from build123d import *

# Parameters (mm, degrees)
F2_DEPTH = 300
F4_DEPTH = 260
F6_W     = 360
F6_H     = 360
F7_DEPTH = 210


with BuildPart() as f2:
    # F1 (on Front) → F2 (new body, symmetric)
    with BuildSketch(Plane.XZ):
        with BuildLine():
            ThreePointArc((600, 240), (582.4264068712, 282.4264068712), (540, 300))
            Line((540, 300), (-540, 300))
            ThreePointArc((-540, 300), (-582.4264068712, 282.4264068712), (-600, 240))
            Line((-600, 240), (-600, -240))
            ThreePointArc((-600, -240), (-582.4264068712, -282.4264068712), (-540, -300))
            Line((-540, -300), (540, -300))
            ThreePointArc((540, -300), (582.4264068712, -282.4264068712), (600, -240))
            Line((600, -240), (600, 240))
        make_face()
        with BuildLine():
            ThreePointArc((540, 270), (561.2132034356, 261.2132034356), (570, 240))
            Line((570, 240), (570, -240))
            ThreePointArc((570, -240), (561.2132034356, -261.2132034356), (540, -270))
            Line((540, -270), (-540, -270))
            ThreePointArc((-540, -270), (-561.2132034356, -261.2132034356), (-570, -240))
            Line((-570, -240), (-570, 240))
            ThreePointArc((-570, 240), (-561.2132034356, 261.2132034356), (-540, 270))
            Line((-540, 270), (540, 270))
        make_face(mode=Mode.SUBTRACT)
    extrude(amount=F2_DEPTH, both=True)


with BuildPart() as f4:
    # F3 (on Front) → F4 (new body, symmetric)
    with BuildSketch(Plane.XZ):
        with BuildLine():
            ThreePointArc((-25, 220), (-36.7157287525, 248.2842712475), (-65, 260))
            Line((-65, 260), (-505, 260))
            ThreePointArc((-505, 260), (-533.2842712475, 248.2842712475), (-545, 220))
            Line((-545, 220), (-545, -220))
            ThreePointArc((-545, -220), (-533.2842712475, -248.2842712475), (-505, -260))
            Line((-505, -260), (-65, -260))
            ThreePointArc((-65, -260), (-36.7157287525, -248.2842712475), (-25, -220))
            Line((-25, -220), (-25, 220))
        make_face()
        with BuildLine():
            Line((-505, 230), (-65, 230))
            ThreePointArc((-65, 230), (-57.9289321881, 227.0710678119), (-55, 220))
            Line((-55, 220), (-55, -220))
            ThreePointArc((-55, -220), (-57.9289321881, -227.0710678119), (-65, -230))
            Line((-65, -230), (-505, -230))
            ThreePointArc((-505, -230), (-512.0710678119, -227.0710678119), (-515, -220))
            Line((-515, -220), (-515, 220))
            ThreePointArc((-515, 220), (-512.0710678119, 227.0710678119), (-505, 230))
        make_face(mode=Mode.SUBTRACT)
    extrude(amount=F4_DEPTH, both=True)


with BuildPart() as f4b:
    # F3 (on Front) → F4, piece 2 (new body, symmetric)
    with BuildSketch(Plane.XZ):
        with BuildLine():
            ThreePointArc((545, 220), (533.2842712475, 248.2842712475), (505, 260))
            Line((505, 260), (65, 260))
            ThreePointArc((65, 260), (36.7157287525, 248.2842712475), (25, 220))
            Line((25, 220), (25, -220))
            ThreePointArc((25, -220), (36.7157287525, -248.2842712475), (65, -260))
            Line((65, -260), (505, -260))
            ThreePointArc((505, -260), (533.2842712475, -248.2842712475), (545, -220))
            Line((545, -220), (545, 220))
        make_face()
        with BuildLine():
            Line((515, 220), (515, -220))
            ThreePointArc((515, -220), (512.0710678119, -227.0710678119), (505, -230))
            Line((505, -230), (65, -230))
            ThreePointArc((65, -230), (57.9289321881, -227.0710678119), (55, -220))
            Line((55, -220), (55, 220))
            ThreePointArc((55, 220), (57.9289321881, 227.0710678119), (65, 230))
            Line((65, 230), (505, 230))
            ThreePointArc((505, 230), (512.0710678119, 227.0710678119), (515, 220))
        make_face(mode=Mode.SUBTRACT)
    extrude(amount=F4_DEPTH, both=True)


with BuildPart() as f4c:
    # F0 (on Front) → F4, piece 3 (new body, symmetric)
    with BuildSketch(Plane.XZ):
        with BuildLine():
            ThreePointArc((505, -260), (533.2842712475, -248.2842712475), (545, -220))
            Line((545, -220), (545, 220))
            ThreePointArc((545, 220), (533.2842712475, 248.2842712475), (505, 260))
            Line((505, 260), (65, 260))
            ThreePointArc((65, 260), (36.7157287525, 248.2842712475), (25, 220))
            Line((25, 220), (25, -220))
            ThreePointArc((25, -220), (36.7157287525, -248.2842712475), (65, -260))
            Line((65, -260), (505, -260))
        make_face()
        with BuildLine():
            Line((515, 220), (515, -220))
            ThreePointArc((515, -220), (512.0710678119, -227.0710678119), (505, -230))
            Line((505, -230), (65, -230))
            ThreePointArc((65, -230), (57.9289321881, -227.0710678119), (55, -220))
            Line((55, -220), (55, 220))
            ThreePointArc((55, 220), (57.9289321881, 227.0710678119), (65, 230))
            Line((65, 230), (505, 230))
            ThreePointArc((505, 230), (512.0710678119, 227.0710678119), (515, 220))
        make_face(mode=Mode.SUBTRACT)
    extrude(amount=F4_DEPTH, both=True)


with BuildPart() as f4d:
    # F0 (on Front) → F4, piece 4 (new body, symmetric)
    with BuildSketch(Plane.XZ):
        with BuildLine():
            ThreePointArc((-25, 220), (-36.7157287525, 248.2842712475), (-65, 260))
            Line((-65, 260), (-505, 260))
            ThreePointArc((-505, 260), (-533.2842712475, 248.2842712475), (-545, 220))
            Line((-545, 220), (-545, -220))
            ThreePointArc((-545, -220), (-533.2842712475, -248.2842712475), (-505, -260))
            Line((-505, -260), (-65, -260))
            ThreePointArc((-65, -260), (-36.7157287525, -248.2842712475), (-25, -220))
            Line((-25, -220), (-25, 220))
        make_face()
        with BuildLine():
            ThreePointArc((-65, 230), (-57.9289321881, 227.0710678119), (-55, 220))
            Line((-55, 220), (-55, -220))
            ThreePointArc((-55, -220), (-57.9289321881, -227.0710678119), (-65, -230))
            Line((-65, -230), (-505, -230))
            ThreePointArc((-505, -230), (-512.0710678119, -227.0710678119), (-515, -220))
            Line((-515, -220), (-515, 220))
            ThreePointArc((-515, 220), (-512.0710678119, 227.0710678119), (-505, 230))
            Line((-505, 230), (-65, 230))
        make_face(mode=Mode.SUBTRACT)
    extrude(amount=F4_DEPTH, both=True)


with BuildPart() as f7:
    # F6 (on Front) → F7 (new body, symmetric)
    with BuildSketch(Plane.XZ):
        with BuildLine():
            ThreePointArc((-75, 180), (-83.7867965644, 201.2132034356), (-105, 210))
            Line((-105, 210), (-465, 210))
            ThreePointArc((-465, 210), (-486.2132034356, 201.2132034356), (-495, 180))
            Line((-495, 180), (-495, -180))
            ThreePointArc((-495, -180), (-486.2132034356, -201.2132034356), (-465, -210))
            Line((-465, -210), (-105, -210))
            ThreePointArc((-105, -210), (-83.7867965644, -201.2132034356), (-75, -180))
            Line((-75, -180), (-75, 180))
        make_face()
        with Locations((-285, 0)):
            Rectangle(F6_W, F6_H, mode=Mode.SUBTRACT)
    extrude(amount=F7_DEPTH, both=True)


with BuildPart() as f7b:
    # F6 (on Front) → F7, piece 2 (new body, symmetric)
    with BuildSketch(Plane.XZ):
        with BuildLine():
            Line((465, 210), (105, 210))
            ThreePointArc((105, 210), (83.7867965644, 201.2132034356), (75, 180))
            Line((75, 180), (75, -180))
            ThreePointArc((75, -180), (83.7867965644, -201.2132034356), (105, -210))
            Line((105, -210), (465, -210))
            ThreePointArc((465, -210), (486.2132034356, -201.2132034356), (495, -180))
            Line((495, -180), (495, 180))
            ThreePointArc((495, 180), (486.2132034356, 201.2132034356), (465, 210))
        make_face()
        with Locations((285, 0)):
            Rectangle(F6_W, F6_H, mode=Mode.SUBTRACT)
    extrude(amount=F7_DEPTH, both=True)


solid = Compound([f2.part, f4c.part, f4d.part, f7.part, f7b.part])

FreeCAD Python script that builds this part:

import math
import FreeCAD as App
import Part
import Sketcher


def add_polygon(sketch, points):
    """Adds a closed chain of lines whose ends are joined by coincident constraints."""
    first, n = sketch.GeometryCount, len(points)
    for a, b in zip(points, points[1:] + points[:1]):
        sketch.addGeometry(Part.LineSegment(App.Vector(*a, 0), App.Vector(*b, 0)), False)
    for i in range(n):
        sketch.addConstraint(Sketcher.Constraint("Coincident", first + i, 2, first + (i + 1) % n, 1))

doc = App.newDocument("Part")
body = doc.addObject("PartDesign::Body", "Body")

# Sketch on XZ plane
sketch1 = body.newObject("Sketcher::SketchObject", "Sketch")
sketch1.AttachmentSupport = (doc.getObject("XZ_Plane"), [""])
sketch1.MapMode = "FlatFace"
sketch1.addGeometry([
    Part.ArcOfCircle(Part.Circle(App.Vector(540, 240, 0), App.Vector(0, 0, 1), 60), math.radians(0), math.radians(90)),  # 0
    Part.LineSegment(App.Vector(540, 300, 0), App.Vector(-540, 300, 0)),  # 1
    Part.ArcOfCircle(Part.Circle(App.Vector(-540, 240, 0), App.Vector(0, 0, 1), 60), math.radians(90), math.radians(180)),  # 2
    Part.LineSegment(App.Vector(-600, 240, 0), App.Vector(-600, -240, 0)),  # 3
    Part.ArcOfCircle(Part.Circle(App.Vector(-540, -240, 0), App.Vector(0, 0, 1), 60), math.radians(180), math.radians(270)),  # 4
    Part.LineSegment(App.Vector(-540, -300, 0), App.Vector(540, -300, 0)),  # 5
    Part.ArcOfCircle(Part.Circle(App.Vector(540, -240, 0), App.Vector(0, 0, 1), 60), math.radians(-90), math.radians(0)),  # 6
    Part.LineSegment(App.Vector(600, -240, 0), App.Vector(600, 240, 0)),  # 7
    Part.LineSegment(App.Vector(-540, 270, 0), App.Vector(540, 270, 0)),  # 8
    Part.ArcOfCircle(Part.Circle(App.Vector(540, 240, 0), App.Vector(0, 0, 1), 30), math.radians(0), math.radians(90)),  # 9
    Part.LineSegment(App.Vector(570, 240, 0), App.Vector(570, -240, 0)),  # 10
    Part.ArcOfCircle(Part.Circle(App.Vector(540, -240, 0), App.Vector(0, 0, 1), 30), math.radians(-90), math.radians(0)),  # 11
    Part.LineSegment(App.Vector(540, -270, 0), App.Vector(-540, -270, 0)),  # 12
    Part.ArcOfCircle(Part.Circle(App.Vector(-540, -240, 0), App.Vector(0, 0, 1), 30), math.radians(180), math.radians(270)),  # 13
    Part.LineSegment(App.Vector(-570, -240, 0), App.Vector(-570, 240, 0)),  # 14
    Part.ArcOfCircle(Part.Circle(App.Vector(-540, 240, 0), App.Vector(0, 0, 1), 30), math.radians(90), math.radians(180)),  # 15
], False)
sketch1.addConstraint([
    Sketcher.Constraint("Tangent", 0, 2, 1, 1),
    Sketcher.Constraint("Tangent", 1, 2, 2, 1),
    Sketcher.Constraint("Tangent", 2, 2, 3, 1),
    Sketcher.Constraint("Tangent", 3, 2, 4, 1),
    Sketcher.Constraint("Tangent", 4, 2, 5, 1),
    Sketcher.Constraint("Tangent", 5, 2, 6, 1),
    Sketcher.Constraint("Tangent", 6, 2, 7, 1),
    Sketcher.Constraint("Tangent", 7, 2, 0, 1),
    Sketcher.Constraint("Tangent", 8, 2, 9, 2),
    Sketcher.Constraint("Tangent", 9, 1, 10, 1),
    Sketcher.Constraint("Tangent", 10, 2, 11, 2),
    Sketcher.Constraint("Tangent", 11, 1, 12, 1),
    Sketcher.Constraint("Tangent", 12, 2, 13, 2),
    Sketcher.Constraint("Tangent", 13, 1, 14, 1),
    Sketcher.Constraint("Tangent", 14, 2, 15, 2),
    Sketcher.Constraint("Tangent", 15, 1, 8, 1),
    Sketcher.Constraint("Horizontal", 1),
    Sketcher.Constraint("Vertical", 3),
    Sketcher.Constraint("Horizontal", 5),
    Sketcher.Constraint("Vertical", 7),
    Sketcher.Constraint("Horizontal", 8),
    Sketcher.Constraint("Vertical", 10),
    Sketcher.Constraint("Horizontal", 12),
    Sketcher.Constraint("Vertical", 14),
    Sketcher.Constraint("Coincident", 9, 3, 0, 3),
    Sketcher.Constraint("Coincident", 11, 3, 6, 3),
    Sketcher.Constraint("Coincident", 13, 3, 4, 3),
    Sketcher.Constraint("Equal", 0, 2),
    Sketcher.Constraint("Equal", 2, 4),
    Sketcher.Constraint("Equal", 4, 6),
    Sketcher.Constraint("Equal", 13, 15),
    Sketcher.Constraint("Symmetric", 0, 3, 4, 3, -1, 1),
    Sketcher.Constraint("Radius", 0, 60.0),
    Sketcher.Constraint("Radius", 9, 30.0),
    Sketcher.Constraint("DistanceX", 1, 2, 1, 1, 1080.0),
    Sketcher.Constraint("DistanceY", 3, 2, 3, 1, 480.0),
])
pad1 = body.newObject("PartDesign::Pad", "Pad")
pad1.Profile = sketch1
pad1.Length = 600
pad1.Midplane = True
body2 = doc.addObject("PartDesign::Body", "Body001")

# Sketch on XZ plane
sketch2 = body2.newObject("Sketcher::SketchObject", "Sketch001")
sketch2.AttachmentSupport = (doc.getObject("XZ_Plane001"), [""])
sketch2.MapMode = "FlatFace"
sketch2.addGeometry([
    Part.ArcOfCircle(Part.Circle(App.Vector(-65, 220, 0), App.Vector(0, 0, 1), 40), math.radians(0), math.radians(90)),  # 0
    Part.LineSegment(App.Vector(-65, 260, 0), App.Vector(-505, 260, 0)),  # 1
    Part.ArcOfCircle(Part.Circle(App.Vector(-505, 220, 0), App.Vector(0, 0, 1), 40), math.radians(90), math.radians(180)),  # 2
    Part.LineSegment(App.Vector(-545, 220, 0), App.Vector(-545, -220, 0)),  # 3
    Part.ArcOfCircle(Part.Circle(App.Vector(-505, -220, 0), App.Vector(0, 0, 1), 40), math.radians(180), math.radians(270)),  # 4
    Part.LineSegment(App.Vector(-505, -260, 0), App.Vector(-65, -260, 0)),  # 5
    Part.ArcOfCircle(Part.Circle(App.Vector(-65, -220, 0), App.Vector(0, 0, 1), 40), math.radians(-90), math.radians(0)),  # 6
    Part.LineSegment(App.Vector(-25, -220, 0), App.Vector(-25, 220, 0)),  # 7
    Part.ArcOfCircle(Part.Circle(App.Vector(-505, 220, 0), App.Vector(0, 0, 1), 10), math.radians(90), math.radians(180)),  # 8
    Part.LineSegment(App.Vector(-505, 230, 0), App.Vector(-65, 230, 0)),  # 9
    Part.ArcOfCircle(Part.Circle(App.Vector(-65, 220, 0), App.Vector(0, 0, 1), 10), math.radians(0), math.radians(90)),  # 10
    Part.LineSegment(App.Vector(-55, 220, 0), App.Vector(-55, -220, 0)),  # 11
    Part.ArcOfCircle(Part.Circle(App.Vector(-65, -220, 0), App.Vector(0, 0, 1), 10), math.radians(-90), math.radians(0)),  # 12
    Part.LineSegment(App.Vector(-65, -230, 0), App.Vector(-505, -230, 0)),  # 13
    Part.ArcOfCircle(Part.Circle(App.Vector(-505, -220, 0), App.Vector(0, 0, 1), 10), math.radians(180), math.radians(270)),  # 14
    Part.LineSegment(App.Vector(-515, -220, 0), App.Vector(-515, 220, 0)),  # 15
], False)
sketch2.addConstraint([
    Sketcher.Constraint("Tangent", 0, 2, 1, 1),
    Sketcher.Constraint("Tangent", 1, 2, 2, 1),
    Sketcher.Constraint("Tangent", 2, 2, 3, 1),
    Sketcher.Constraint("Tangent", 3, 2, 4, 1),
    Sketcher.Constraint("Tangent", 4, 2, 5, 1),
    Sketcher.Constraint("Tangent", 5, 2, 6, 1),
    Sketcher.Constraint("Tangent", 6, 2, 7, 1),
    Sketcher.Constraint("Tangent", 7, 2, 0, 1),
    Sketcher.Constraint("Tangent", 8, 1, 9, 1),
    Sketcher.Constraint("Tangent", 9, 2, 10, 2),
    Sketcher.Constraint("Tangent", 10, 1, 11, 1),
    Sketcher.Constraint("Tangent", 11, 2, 12, 2),
    Sketcher.Constraint("Tangent", 12, 1, 13, 1),
    Sketcher.Constraint("Tangent", 13, 2, 14, 2),
    Sketcher.Constraint("Tangent", 14, 1, 15, 1),
    Sketcher.Constraint("Tangent", 15, 2, 8, 2),
    Sketcher.Constraint("Horizontal", 1),
    Sketcher.Constraint("Vertical", 3),
    Sketcher.Constraint("Horizontal", 5),
    Sketcher.Constraint("Vertical", 7),
    Sketcher.Constraint("Horizontal", 9),
    Sketcher.Constraint("Vertical", 11),
    Sketcher.Constraint("Horizontal", 13),
    Sketcher.Constraint("Vertical", 15),
    Sketcher.Constraint("Coincident", 8, 3, 2, 3),
    Sketcher.Constraint("Coincident", 10, 3, 0, 3),
    Sketcher.Constraint("Coincident", 12, 3, 6, 3),
    Sketcher.Constraint("Equal", 0, 2),
    Sketcher.Constraint("Equal", 2, 4),
    Sketcher.Constraint("Equal", 4, 6),
    Sketcher.Constraint("Equal", 12, 14),
    Sketcher.Constraint("Equal", 13, 3),
    Sketcher.Constraint("Radius", 0, 40.0),
    Sketcher.Constraint("Radius", 8, 10.0),
    Sketcher.Constraint("DistanceX", 1, 2, 1, 1, 440.0),
    Sketcher.Constraint("DistanceX", 0, 3, -1, 1, 65.0),
    Sketcher.Constraint("DistanceY", -1, 1, 0, 3, 220.0),
])
pad2 = body2.newObject("PartDesign::Pad", "Pad001")
pad2.Profile = sketch2
pad2.Length = 520
pad2.Midplane = True
body3 = doc.addObject("PartDesign::Body", "Body002")

# Sketch on XZ plane
sketch3 = body3.newObject("Sketcher::SketchObject", "Sketch002")
sketch3.AttachmentSupport = (doc.getObject("XZ_Plane002"), [""])
sketch3.MapMode = "FlatFace"
sketch3.addGeometry([
    Part.ArcOfCircle(Part.Circle(App.Vector(505, 220, 0), App.Vector(0, 0, 1), 40), math.radians(0), math.radians(90)),  # 0
    Part.LineSegment(App.Vector(505, 260, 0), App.Vector(65, 260, 0)),  # 1
    Part.ArcOfCircle(Part.Circle(App.Vector(65, 220, 0), App.Vector(0, 0, 1), 40), math.radians(90), math.radians(180)),  # 2
    Part.LineSegment(App.Vector(25, 220, 0), App.Vector(25, -220, 0)),  # 3
    Part.ArcOfCircle(Part.Circle(App.Vector(65, -220, 0), App.Vector(0, 0, 1), 40), math.radians(180), math.radians(270)),  # 4
    Part.LineSegment(App.Vector(65, -260, 0), App.Vector(505, -260, 0)),  # 5
    Part.ArcOfCircle(Part.Circle(App.Vector(505, -220, 0), App.Vector(0, 0, 1), 40), math.radians(-90), math.radians(0)),  # 6
    Part.LineSegment(App.Vector(545, -220, 0), App.Vector(545, 220, 0)),  # 7
    Part.ArcOfCircle(Part.Circle(App.Vector(505, 220, 0), App.Vector(0, 0, 1), 10), math.radians(0), math.radians(90)),  # 8
    Part.LineSegment(App.Vector(515, 220, 0), App.Vector(515, -220, 0)),  # 9
    Part.ArcOfCircle(Part.Circle(App.Vector(505, -220, 0), App.Vector(0, 0, 1), 10), math.radians(-90), math.radians(0)),  # 10
    Part.LineSegment(App.Vector(505, -230, 0), App.Vector(65, -230, 0)),  # 11
    Part.ArcOfCircle(Part.Circle(App.Vector(65, -220, 0), App.Vector(0, 0, 1), 10), math.radians(180), math.radians(270)),  # 12
    Part.LineSegment(App.Vector(55, -220, 0), App.Vector(55, 220, 0)),  # 13
    Part.ArcOfCircle(Part.Circle(App.Vector(65, 220, 0), App.Vector(0, 0, 1), 10), math.radians(90), math.radians(180)),  # 14
    Part.LineSegment(App.Vector(65, 230, 0), App.Vector(505, 230, 0)),  # 15
], False)
sketch3.addConstraint([
    Sketcher.Constraint("Tangent", 0, 2, 1, 1),
    Sketcher.Constraint("Tangent", 1, 2, 2, 1),
    Sketcher.Constraint("Tangent", 2, 2, 3, 1),
    Sketcher.Constraint("Tangent", 3, 2, 4, 1),
    Sketcher.Constraint("Tangent", 4, 2, 5, 1),
    Sketcher.Constraint("Tangent", 5, 2, 6, 1),
    Sketcher.Constraint("Tangent", 6, 2, 7, 1),
    Sketcher.Constraint("Tangent", 7, 2, 0, 1),
    Sketcher.Constraint("Tangent", 8, 1, 9, 1),
    Sketcher.Constraint("Tangent", 9, 2, 10, 2),
    Sketcher.Constraint("Tangent", 10, 1, 11, 1),
    Sketcher.Constraint("Tangent", 11, 2, 12, 2),
    Sketcher.Constraint("Tangent", 12, 1, 13, 1),
    Sketcher.Constraint("Tangent", 13, 2, 14, 2),
    Sketcher.Constraint("Tangent", 14, 1, 15, 1),
    Sketcher.Constraint("Tangent", 15, 2, 8, 2),
    Sketcher.Constraint("Horizontal", 1),
    Sketcher.Constraint("Vertical", 3),
    Sketcher.Constraint("Horizontal", 5),
    Sketcher.Constraint("Vertical", 7),
    Sketcher.Constraint("Vertical", 9),
    Sketcher.Constraint("Horizontal", 11),
    Sketcher.Constraint("Vertical", 13),
    Sketcher.Constraint("Horizontal", 15),
    Sketcher.Constraint("Coincident", 8, 3, 0, 3),
    Sketcher.Constraint("Coincident", 10, 3, 6, 3),
    Sketcher.Constraint("Coincident", 12, 3, 4, 3),
    Sketcher.Constraint("Equal", 0, 2),
    Sketcher.Constraint("Equal", 2, 4),
    Sketcher.Constraint("Equal", 4, 6),
    Sketcher.Constraint("Equal", 12, 14),
    Sketcher.Constraint("Equal", 15, 3),
    Sketcher.Constraint("Radius", 0, 40.0),
    Sketcher.Constraint("Radius", 8, 10.0),
    Sketcher.Constraint("DistanceX", 1, 2, 1, 1, 440.0),
    Sketcher.Constraint("DistanceX", -1, 1, 0, 3, 505.0),
    Sketcher.Constraint("DistanceY", -1, 1, 0, 3, 220.0),
])
pad3 = body3.newObject("PartDesign::Pad", "Pad002")
pad3.Profile = sketch3
pad3.Length = 520
pad3.Midplane = True
body4 = doc.addObject("PartDesign::Body", "Body003")

# Sketch on XZ plane
sketch4 = body4.newObject("Sketcher::SketchObject", "Sketch003")
sketch4.AttachmentSupport = (doc.getObject("XZ_Plane003"), [""])
sketch4.MapMode = "FlatFace"
sketch4.addGeometry([
    Part.ArcOfCircle(Part.Circle(App.Vector(505, -220, 0), App.Vector(0, 0, 1), 40), math.radians(-90), math.radians(0)),  # 0
    Part.LineSegment(App.Vector(545, -220, 0), App.Vector(545, 220, 0)),  # 1
    Part.ArcOfCircle(Part.Circle(App.Vector(505, 220, 0), App.Vector(0, 0, 1), 40), math.radians(0), math.radians(90)),  # 2
    Part.LineSegment(App.Vector(505, 260, 0), App.Vector(65, 260, 0)),  # 3
    Part.ArcOfCircle(Part.Circle(App.Vector(65, 220, 0), App.Vector(0, 0, 1), 40), math.radians(90), math.radians(180)),  # 4
    Part.LineSegment(App.Vector(25, 220, 0), App.Vector(25, -220, 0)),  # 5
    Part.ArcOfCircle(Part.Circle(App.Vector(65, -220, 0), App.Vector(0, 0, 1), 40), math.radians(180), math.radians(270)),  # 6
    Part.LineSegment(App.Vector(65, -260, 0), App.Vector(505, -260, 0)),  # 7
    Part.ArcOfCircle(Part.Circle(App.Vector(505, 220, 0), App.Vector(0, 0, 1), 10), math.radians(0), math.radians(90)),  # 8
    Part.LineSegment(App.Vector(515, 220, 0), App.Vector(515, -220, 0)),  # 9
    Part.ArcOfCircle(Part.Circle(App.Vector(505, -220, 0), App.Vector(0, 0, 1), 10), math.radians(-90), math.radians(0)),  # 10
    Part.LineSegment(App.Vector(505, -230, 0), App.Vector(65, -230, 0)),  # 11
    Part.ArcOfCircle(Part.Circle(App.Vector(65, -220, 0), App.Vector(0, 0, 1), 10), math.radians(180), math.radians(270)),  # 12
    Part.LineSegment(App.Vector(55, -220, 0), App.Vector(55, 220, 0)),  # 13
    Part.ArcOfCircle(Part.Circle(App.Vector(65, 220, 0), App.Vector(0, 0, 1), 10), math.radians(90), math.radians(180)),  # 14
    Part.LineSegment(App.Vector(65, 230, 0), App.Vector(505, 230, 0)),  # 15
], False)
sketch4.addConstraint([
    Sketcher.Constraint("Tangent", 0, 2, 1, 1),
    Sketcher.Constraint("Tangent", 1, 2, 2, 1),
    Sketcher.Constraint("Tangent", 2, 2, 3, 1),
    Sketcher.Constraint("Tangent", 3, 2, 4, 1),
    Sketcher.Constraint("Tangent", 4, 2, 5, 1),
    Sketcher.Constraint("Tangent", 5, 2, 6, 1),
    Sketcher.Constraint("Tangent", 6, 2, 7, 1),
    Sketcher.Constraint("Tangent", 7, 2, 0, 1),
    Sketcher.Constraint("Tangent", 8, 1, 9, 1),
    Sketcher.Constraint("Tangent", 9, 2, 10, 2),
    Sketcher.Constraint("Tangent", 10, 1, 11, 1),
    Sketcher.Constraint("Tangent", 11, 2, 12, 2),
    Sketcher.Constraint("Tangent", 12, 1, 13, 1),
    Sketcher.Constraint("Tangent", 13, 2, 14, 2),
    Sketcher.Constraint("Tangent", 14, 1, 15, 1),
    Sketcher.Constraint("Tangent", 15, 2, 8, 2),
    Sketcher.Constraint("Vertical", 1),
    Sketcher.Constraint("Horizontal", 3),
    Sketcher.Constraint("Vertical", 5),
    Sketcher.Constraint("Horizontal", 7),
    Sketcher.Constraint("Vertical", 9),
    Sketcher.Constraint("Horizontal", 11),
    Sketcher.Constraint("Vertical", 13),
    Sketcher.Constraint("Horizontal", 15),
    Sketcher.Constraint("Coincident", 8, 3, 2, 3),
    Sketcher.Constraint("Coincident", 10, 3, 0, 3),
    Sketcher.Constraint("Coincident", 12, 3, 6, 3),
    Sketcher.Constraint("Equal", 0, 2),
    Sketcher.Constraint("Equal", 2, 4),
    Sketcher.Constraint("Equal", 4, 6),
    Sketcher.Constraint("Equal", 12, 14),
    Sketcher.Constraint("Equal", 15, 1),
    Sketcher.Constraint("Radius", 0, 40.0),
    Sketcher.Constraint("Radius", 8, 10.0),
    Sketcher.Constraint("DistanceX", 3, 2, 3, 1, 440.0),
    Sketcher.Constraint("DistanceX", -1, 1, 0, 3, 505.0),
    Sketcher.Constraint("DistanceY", 0, 3, -1, 1, 220.0),
])
pad4 = body4.newObject("PartDesign::Pad", "Pad003")
pad4.Profile = sketch4
pad4.Length = 520
pad4.Midplane = True
body5 = doc.addObject("PartDesign::Body", "Body004")

# Sketch on XZ plane
sketch5 = body5.newObject("Sketcher::SketchObject", "Sketch004")
sketch5.AttachmentSupport = (doc.getObject("XZ_Plane004"), [""])
sketch5.MapMode = "FlatFace"
sketch5.addGeometry([
    Part.ArcOfCircle(Part.Circle(App.Vector(-65, 220, 0), App.Vector(0, 0, 1), 40), math.radians(0), math.radians(90)),  # 0
    Part.LineSegment(App.Vector(-65, 260, 0), App.Vector(-505, 260, 0)),  # 1
    Part.ArcOfCircle(Part.Circle(App.Vector(-505, 220, 0), App.Vector(0, 0, 1), 40), math.radians(90), math.radians(180)),  # 2
    Part.LineSegment(App.Vector(-545, 220, 0), App.Vector(-545, -220, 0)),  # 3
    Part.ArcOfCircle(Part.Circle(App.Vector(-505, -220, 0), App.Vector(0, 0, 1), 40), math.radians(180), math.radians(270)),  # 4
    Part.LineSegment(App.Vector(-505, -260, 0), App.Vector(-65, -260, 0)),  # 5
    Part.ArcOfCircle(Part.Circle(App.Vector(-65, -220, 0), App.Vector(0, 0, 1), 40), math.radians(-90), math.radians(0)),  # 6
    Part.LineSegment(App.Vector(-25, -220, 0), App.Vector(-25, 220, 0)),  # 7
    Part.LineSegment(App.Vector(-505, 230, 0), App.Vector(-65, 230, 0)),  # 8
    Part.ArcOfCircle(Part.Circle(App.Vector(-65, 220, 0), App.Vector(0, 0, 1), 10), math.radians(0), math.radians(90)),  # 9
    Part.LineSegment(App.Vector(-55, 220, 0), App.Vector(-55, -220, 0)),  # 10
    Part.ArcOfCircle(Part.Circle(App.Vector(-65, -220, 0), App.Vector(0, 0, 1), 10), math.radians(-90), math.radians(0)),  # 11
    Part.LineSegment(App.Vector(-65, -230, 0), App.Vector(-505, -230, 0)),  # 12
    Part.ArcOfCircle(Part.Circle(App.Vector(-505, -220, 0), App.Vector(0, 0, 1), 10), math.radians(180), math.radians(270)),  # 13
    Part.LineSegment(App.Vector(-515, -220, 0), App.Vector(-515, 220, 0)),  # 14
    Part.ArcOfCircle(Part.Circle(App.Vector(-505, 220, 0), App.Vector(0, 0, 1), 10), math.radians(90), math.radians(180)),  # 15
], False)
sketch5.addConstraint([
    Sketcher.Constraint("Tangent", 0, 2, 1, 1),
    Sketcher.Constraint("Tangent", 1, 2, 2, 1),
    Sketcher.Constraint("Tangent", 2, 2, 3, 1),
    Sketcher.Constraint("Tangent", 3, 2, 4, 1),
    Sketcher.Constraint("Tangent", 4, 2, 5, 1),
    Sketcher.Constraint("Tangent", 5, 2, 6, 1),
    Sketcher.Constraint("Tangent", 6, 2, 7, 1),
    Sketcher.Constraint("Tangent", 7, 2, 0, 1),
    Sketcher.Constraint("Tangent", 8, 2, 9, 2),
    Sketcher.Constraint("Tangent", 9, 1, 10, 1),
    Sketcher.Constraint("Tangent", 10, 2, 11, 2),
    Sketcher.Constraint("Tangent", 11, 1, 12, 1),
    Sketcher.Constraint("Tangent", 12, 2, 13, 2),
    Sketcher.Constraint("Tangent", 13, 1, 14, 1),
    Sketcher.Constraint("Tangent", 14, 2, 15, 2),
    Sketcher.Constraint("Tangent", 15, 1, 8, 1),
    Sketcher.Constraint("Horizontal", 1),
    Sketcher.Constraint("Vertical", 3),
    Sketcher.Constraint("Horizontal", 5),
    Sketcher.Constraint("Vertical", 7),
    Sketcher.Constraint("Horizontal", 8),
    Sketcher.Constraint("Vertical", 10),
    Sketcher.Constraint("Horizontal", 12),
    Sketcher.Constraint("Vertical", 14),
    Sketcher.Constraint("Coincident", 9, 3, 0, 3),
    Sketcher.Constraint("Coincident", 11, 3, 6, 3),
    Sketcher.Constraint("Coincident", 13, 3, 4, 3),
    Sketcher.Constraint("Equal", 0, 2),
    Sketcher.Constraint("Equal", 2, 4),
    Sketcher.Constraint("Equal", 4, 6),
    Sketcher.Constraint("Equal", 13, 15),
    Sketcher.Constraint("Equal", 12, 3),
    Sketcher.Constraint("Radius", 0, 40.0),
    Sketcher.Constraint("Radius", 9, 10.0),
    Sketcher.Constraint("DistanceX", 1, 2, 1, 1, 440.0),
    Sketcher.Constraint("DistanceX", 0, 3, -1, 1, 65.0),
    Sketcher.Constraint("DistanceY", -1, 1, 0, 3, 220.0),
])
pad5 = body5.newObject("PartDesign::Pad", "Pad004")
pad5.Profile = sketch5
pad5.Length = 520
pad5.Midplane = True
body6 = doc.addObject("PartDesign::Body", "Body005")

# Sketch on XZ plane
sketch6 = body6.newObject("Sketcher::SketchObject", "Sketch005")
sketch6.AttachmentSupport = (doc.getObject("XZ_Plane005"), [""])
sketch6.MapMode = "FlatFace"
sketch6.addGeometry(Part.ArcOfCircle(Part.Circle(App.Vector(-105, 180, 0), App.Vector(0, 0, 1), 30), math.radians(0), math.radians(90)), False)  # 0
sketch6.addGeometry(Part.LineSegment(App.Vector(-105, 210, 0), App.Vector(-465, 210, 0)), False)  # 1
sketch6.addGeometry(Part.ArcOfCircle(Part.Circle(App.Vector(-465, 180, 0), App.Vector(0, 0, 1), 30), math.radians(90), math.radians(180)), False)  # 2
sketch6.addGeometry(Part.LineSegment(App.Vector(-495, 180, 0), App.Vector(-495, -180, 0)), False)  # 3
sketch6.addGeometry(Part.ArcOfCircle(Part.Circle(App.Vector(-465, -180, 0), App.Vector(0, 0, 1), 30), math.radians(180), math.radians(270)), False)  # 4
sketch6.addGeometry(Part.LineSegment(App.Vector(-465, -210, 0), App.Vector(-105, -210, 0)), False)  # 5
sketch6.addGeometry(Part.ArcOfCircle(Part.Circle(App.Vector(-105, -180, 0), App.Vector(0, 0, 1), 30), math.radians(-90), math.radians(0)), False)  # 6
sketch6.addGeometry(Part.LineSegment(App.Vector(-75, -180, 0), App.Vector(-75, 180, 0)), False)  # 7
add_polygon(sketch6, [(-105, -180), (-465, -180), (-465, 180), (-105, 180)])  # lines 8-11
sketch6.addConstraint([
    Sketcher.Constraint("Tangent", 0, 2, 1, 1),
    Sketcher.Constraint("Tangent", 1, 2, 2, 1),
    Sketcher.Constraint("Tangent", 2, 2, 3, 1),
    Sketcher.Constraint("Tangent", 3, 2, 4, 1),
    Sketcher.Constraint("Tangent", 4, 2, 5, 1),
    Sketcher.Constraint("Tangent", 5, 2, 6, 1),
    Sketcher.Constraint("Tangent", 6, 2, 7, 1),
    Sketcher.Constraint("Tangent", 7, 2, 0, 1),
    Sketcher.Constraint("Horizontal", 1),
    Sketcher.Constraint("Vertical", 3),
    Sketcher.Constraint("Horizontal", 5),
    Sketcher.Constraint("Vertical", 7),
    Sketcher.Constraint("Horizontal", 8),
    Sketcher.Constraint("Vertical", 9),
    Sketcher.Constraint("Horizontal", 10),
    Sketcher.Constraint("Vertical", 11),
    Sketcher.Constraint("Coincident", 8, 2, 4, 3),
    Sketcher.Constraint("Coincident", 9, 2, 2, 3),
    Sketcher.Constraint("Coincident", 10, 2, 0, 3),
    Sketcher.Constraint("Equal", 4, 6),
    Sketcher.Constraint("Equal", 10, 3),
    Sketcher.Constraint("Radius", 0, 30.0),
    Sketcher.Constraint("DistanceX", 1, 2, 1, 1, 360.0),
    Sketcher.Constraint("DistanceX", 0, 3, -1, 1, 105.0),
    Sketcher.Constraint("DistanceY", -1, 1, 0, 3, 180.0),
])
pad6 = body6.newObject("PartDesign::Pad", "Pad005")
pad6.Profile = sketch6
pad6.Length = 420
pad6.Midplane = True
body7 = doc.addObject("PartDesign::Body", "Body006")

# Sketch on XZ plane
sketch7 = body7.newObject("Sketcher::SketchObject", "Sketch006")
sketch7.AttachmentSupport = (doc.getObject("XZ_Plane006"), [""])
sketch7.MapMode = "FlatFace"
sketch7.addGeometry(Part.LineSegment(App.Vector(465, 210, 0), App.Vector(105, 210, 0)), False)  # 0
sketch7.addGeometry(Part.ArcOfCircle(Part.Circle(App.Vector(105, 180, 0), App.Vector(0, 0, 1), 30), math.radians(90), math.radians(180)), False)  # 1
sketch7.addGeometry(Part.LineSegment(App.Vector(75, 180, 0), App.Vector(75, -180, 0)), False)  # 2
sketch7.addGeometry(Part.ArcOfCircle(Part.Circle(App.Vector(105, -180, 0), App.Vector(0, 0, 1), 30), math.radians(180), math.radians(270)), False)  # 3
sketch7.addGeometry(Part.LineSegment(App.Vector(105, -210, 0), App.Vector(465, -210, 0)), False)  # 4
sketch7.addGeometry(Part.ArcOfCircle(Part.Circle(App.Vector(465, -180, 0), App.Vector(0, 0, 1), 30), math.radians(-90), math.radians(0)), False)  # 5
sketch7.addGeometry(Part.LineSegment(App.Vector(495, -180, 0), App.Vector(495, 180, 0)), False)  # 6
sketch7.addGeometry(Part.ArcOfCircle(Part.Circle(App.Vector(465, 180, 0), App.Vector(0, 0, 1), 30), math.radians(0), math.radians(90)), False)  # 7
add_polygon(sketch7, [(465, -180), (105, -180), (105, 180), (465, 180)])  # lines 8-11
sketch7.addConstraint([
    Sketcher.Constraint("Tangent", 0, 2, 1, 1),
    Sketcher.Constraint("Tangent", 1, 2, 2, 1),
    Sketcher.Constraint("Tangent", 2, 2, 3, 1),
    Sketcher.Constraint("Tangent", 3, 2, 4, 1),
    Sketcher.Constraint("Tangent", 4, 2, 5, 1),
    Sketcher.Constraint("Tangent", 5, 2, 6, 1),
    Sketcher.Constraint("Tangent", 6, 2, 7, 1),
    Sketcher.Constraint("Tangent", 7, 2, 0, 1),
    Sketcher.Constraint("Horizontal", 0),
    Sketcher.Constraint("Vertical", 2),
    Sketcher.Constraint("Horizontal", 4),
    Sketcher.Constraint("Vertical", 6),
    Sketcher.Constraint("Horizontal", 8),
    Sketcher.Constraint("Vertical", 9),
    Sketcher.Constraint("Horizontal", 10),
    Sketcher.Constraint("Vertical", 11),
    Sketcher.Constraint("Coincident", 8, 2, 3, 3),
    Sketcher.Constraint("Coincident", 9, 2, 1, 3),
    Sketcher.Constraint("Coincident", 10, 2, 7, 3),
    Sketcher.Constraint("Equal", 3, 5),
    Sketcher.Constraint("Equal", 10, 2),
    Sketcher.Constraint("Radius", 1, 30.0),
    Sketcher.Constraint("DistanceX", 0, 2, 0, 1, 360.0),
    Sketcher.Constraint("DistanceX", -1, 1, 1, 3, 105.0),
    Sketcher.Constraint("DistanceY", -1, 1, 1, 3, 180.0),
])
pad7 = body7.newObject("PartDesign::Pad", "Pad006")
pad7.Profile = sketch7
pad7.Length = 420
pad7.Midplane = True
body2.Visibility = False
body3.Visibility = False

doc.recompute()
